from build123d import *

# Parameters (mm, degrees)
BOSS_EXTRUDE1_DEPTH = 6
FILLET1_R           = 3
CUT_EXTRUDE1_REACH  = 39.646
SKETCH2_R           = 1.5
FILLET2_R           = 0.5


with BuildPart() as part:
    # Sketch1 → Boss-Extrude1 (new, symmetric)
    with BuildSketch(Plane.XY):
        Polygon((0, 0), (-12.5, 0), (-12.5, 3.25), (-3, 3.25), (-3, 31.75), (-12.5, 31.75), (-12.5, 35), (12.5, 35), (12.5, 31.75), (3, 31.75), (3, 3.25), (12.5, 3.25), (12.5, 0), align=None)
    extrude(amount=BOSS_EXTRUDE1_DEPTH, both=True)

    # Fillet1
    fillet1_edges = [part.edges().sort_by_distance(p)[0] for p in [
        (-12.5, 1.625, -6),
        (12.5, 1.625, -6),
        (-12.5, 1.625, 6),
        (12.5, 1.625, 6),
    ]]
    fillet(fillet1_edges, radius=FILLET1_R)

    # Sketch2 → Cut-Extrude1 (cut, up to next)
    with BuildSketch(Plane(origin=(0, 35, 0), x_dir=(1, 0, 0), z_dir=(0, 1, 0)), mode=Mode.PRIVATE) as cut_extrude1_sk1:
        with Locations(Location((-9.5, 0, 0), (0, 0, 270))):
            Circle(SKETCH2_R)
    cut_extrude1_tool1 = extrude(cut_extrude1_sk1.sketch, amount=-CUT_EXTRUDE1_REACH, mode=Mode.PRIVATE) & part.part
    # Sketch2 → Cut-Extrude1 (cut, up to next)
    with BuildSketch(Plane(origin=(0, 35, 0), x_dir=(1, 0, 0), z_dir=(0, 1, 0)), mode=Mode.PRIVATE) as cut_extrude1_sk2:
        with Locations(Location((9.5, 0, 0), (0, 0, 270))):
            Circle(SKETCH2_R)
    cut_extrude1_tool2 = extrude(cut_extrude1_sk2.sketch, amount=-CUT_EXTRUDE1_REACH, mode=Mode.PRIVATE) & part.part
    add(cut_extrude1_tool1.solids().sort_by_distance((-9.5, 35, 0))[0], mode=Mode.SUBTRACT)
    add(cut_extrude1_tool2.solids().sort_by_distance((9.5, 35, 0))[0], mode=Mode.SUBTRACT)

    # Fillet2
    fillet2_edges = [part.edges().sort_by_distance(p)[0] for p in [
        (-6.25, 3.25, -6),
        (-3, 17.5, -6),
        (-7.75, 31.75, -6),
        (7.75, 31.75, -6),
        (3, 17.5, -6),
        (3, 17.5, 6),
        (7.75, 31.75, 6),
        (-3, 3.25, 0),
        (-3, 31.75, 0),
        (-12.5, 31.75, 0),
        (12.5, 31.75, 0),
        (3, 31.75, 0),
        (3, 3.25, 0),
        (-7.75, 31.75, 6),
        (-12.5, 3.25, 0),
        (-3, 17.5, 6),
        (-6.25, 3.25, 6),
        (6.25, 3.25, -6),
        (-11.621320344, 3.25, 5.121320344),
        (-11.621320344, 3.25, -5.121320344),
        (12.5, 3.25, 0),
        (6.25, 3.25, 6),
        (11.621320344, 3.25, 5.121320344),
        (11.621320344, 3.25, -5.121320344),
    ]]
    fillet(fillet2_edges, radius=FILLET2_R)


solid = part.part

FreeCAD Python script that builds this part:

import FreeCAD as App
import Part
import Sketcher

V = App.Vector


def edges_at(feature, points):
    """Names of the edges that pass closest to the given points."""
    edges = feature.Shape.Edges
    near = lambda p: min(range(len(edges)), key=lambda i: edges[i].distToShape(Part.Vertex(*p))[0])
    return sorted({f"Edge{near(p) + 1}" for p in points})

doc = App.newDocument("Part")
body = doc.addObject("PartDesign::Body", "Body")

sketch1 = body.newObject("Sketcher::SketchObject", "Sketch")
sketch1.AttachmentSupport = (doc.getObject("XY_Plane"), [""])
sketch1.MapMode = "FlatFace"
sketch1.addGeometry(Part.LineSegment(V(-12.5, 0, 0), V(12.5, 0, 0)), False)
sketch1.addGeometry(Part.LineSegment(V(12.5, 0, 0), V(12.5, 3.2, 0)), False)
sketch1.addGeometry(Part.LineSegment(V(12.5, 3.2, 0), V(3, 3.2, 0)), False)
sketch1.addGeometry(Part.LineSegment(V(3, 3.2, 0), V(3, 31.8, 0)), False)
sketch1.addGeometry(Part.LineSegment(V(3, 31.8, 0), V(12.5, 31.8, 0)), False)
sketch1.addGeometry(Part.LineSegment(V(12.5, 31.8, 0), V(12.5, 35, 0)), False)
sketch1.addGeometry(Part.LineSegment(V(12.5, 35, 0), V(-12.5, 35, 0)), False)
sketch1.addGeometry(Part.LineSegment(V(-12.5, 35, 0), V(-12.5, 31.8, 0)), False)
sketch1.addGeometry(Part.LineSegment(V(-12.5, 31.8, 0), V(-3, 31.8, 0)), False)
sketch1.addGeometry(Part.LineSegment(V(-3, 31.8, 0), V(-3, 3.2, 0)), False)
sketch1.addGeometry(Part.LineSegment(V(-3, 3.2, 0), V(-12.5, 3.2, 0)), False)
sketch1.addGeometry(Part.LineSegment(V(-12.5, 3.2, 0), V(-12.5, 0, 0)), False)
sketch1.addConstraint(Sketcher.Constraint("Coincident", 0, 2, 1, 1))
sketch1.addConstraint(Sketcher.Constraint("Coincident", 1, 2, 2, 1))
sketch1.addConstraint(Sketcher.Constraint("Coincident", 2, 2, 3, 1))
sketch1.addConstraint(Sketcher.Constraint("Coincident", 3, 2, 4, 1))
sketch1.addConstraint(Sketcher.Constraint("Coincident", 4, 2, 5, 1))
sketch1.addConstraint(Sketcher.Constraint("Coincident", 5, 2, 6, 1))
sketch1.addConstraint(Sketcher.Constraint("Coincident", 6, 2, 7, 1))
sketch1.addConstraint(Sketcher.Constraint("Coincident", 7, 2, 8, 1))
sketch1.addConstraint(Sketcher.Constraint("Coincident", 8, 2, 9, 1))
sketch1.addConstraint(Sketcher.Constraint("Coincident", 9, 2, 10, 1))
sketch1.addConstraint(Sketcher.Constraint("Coincident", 10, 2, 11, 1))
sketch1.addConstraint(Sketcher.Constraint("Coincident", 11, 2, 0, 1))
sketch1.addConstraint(Sketcher.Constraint("Horizontal", 0))
sketch1.addConstraint(Sketcher.Constraint("Vertical", 1))
sketch1.addConstraint(Sketcher.Constraint("Horizontal", 2))
sketch1.addConstraint(Sketcher.Constraint("Vertical", 3))
sketch1.addConstraint(Sketcher.Constraint("Horizontal", 4))
sketch1.addConstraint(Sketcher.Constraint("Vertical", 5))
sketch1.addConstraint(Sketcher.Constraint("Horizontal", 6))
sketch1.addConstraint(Sketcher.Constraint("Vertical", 7))
sketch1.addConstraint(Sketcher.Constraint("Horizontal", 8))
sketch1.addConstraint(Sketcher.Constraint("Vertical", 9))
sketch1.addConstraint(Sketcher.Constraint("Horizontal", 10))
sketch1.addConstraint(Sketcher.Constraint("Vertical", 11))
sketch1.addConstraint(Sketcher.Constraint("Symmetric", 0, 2, 11, 2, -1, 1))
sketch1.addConstraint(Sketcher.Constraint("Symmetric", 4, 2, 7, 2, -2))
sketch1.addConstraint(Sketcher.Constraint("Symmetric", 2, 2, 9, 2, -2))
sketch1.addConstraint(Sketcher.Constraint("Vertical", 1, 2, 4, 2))
sketch1.addConstraint(Sketcher.Constraint("Equal", 1, 5))
sketch1.addConstraint(Sketcher.Constraint("DistanceX", 0, 1, 0, 2, 25.0))
sketch1.addConstraint(Sketcher.Constraint("DistanceX", 2, 2, 2, 1, 9.5))
sketch1.addConstraint(Sketcher.Constraint("DistanceY", 3, 1, 3, 2, 28.5))
sketch1.addConstraint(Sketcher.Constraint("DistanceY", -1, 1, 5, 2, 35.0))
pad1 = body.newObject("PartDesign::Pad", "Pad")
pad1.Profile = sketch1
pad1.Length = 12
pad1.Midplane = True
doc.recompute()

fillet = body.newObject("PartDesign::Fillet", "Fillet")
fillet.Base = (pad1, edges_at(pad1, [
    (-12.5, 1.625, -6),
    (12.5, 1.625, -6),
    (-12.5, 1.625, 6),
    (12.5, 1.625, 6),
]))
fillet.Radius = 3

sketch2 = body.newObject("Sketcher::SketchObject", "Sketch001")
sketch2.AttachmentSupport = (doc.getObject("XZ_Plane"), [""])
sketch2.MapMode = "FlatFace"
sketch2.AttachmentOffset = App.Placement(V(0, 0, -35), App.Rotation())
sketch2.addGeometry(Part.Circle(V(-9.5, 0, 0), V(0, 0, 1), 1.5), False)
sketch2.addConstraint(Sketcher.Constraint("PointOnObject", 0, 3, -1))
sketch2.addConstraint(Sketcher.Constraint("Diameter", 0, 3.0))
sketch2.addConstraint(Sketcher.Constraint("DistanceX", 0, 3, -1, 1, 9.5))
pocket1 = body.newObject("PartDesign::Pocket", "Pocket")
pocket1.Profile = sketch2
pocket1.Type = "UpToFirst"
pocket1.Reversed = True

sketch3 = body.newObject("Sketcher::SketchObject", "Sketch002")
sketch3.AttachmentSupport = (doc.getObject("XZ_Plane"), [""])
sketch3.MapMode = "FlatFace"
sketch3.AttachmentOffset = App.Placement(V(0, 0, -35), App.Rotation())
sketch3.addGeometry(Part.Circle(V(9.5, 0, 0), V(0, 0, 1), 1.5), False)
sketch3.addConstraint(Sketcher.Constraint("PointOnObject", 0, 3, -1))
sketch3.addConstraint(Sketcher.Constraint("Diameter", 0, 3.0))
sketch3.addConstraint(Sketcher.Constraint("DistanceX", -1, 1, 0, 3, 9.5))
pocket2 = body.newObject("PartDesign::Pocket", "Pocket001")
pocket2.Profile = sketch3
pocket2.Type = "UpToFirst"
pocket2.Reversed = True
doc.recompute()

fillet2 = body.newObject("PartDesign::Fillet", "Fillet001")
fillet2.Base = (pocket2, edges_at(pocket2, [
    (-6.25, 3.25, -6),
    (-3, 17.5, -6),
    (-7.75, 31.75, -6),
    (7.75, 31.75, -6),
    (3, 17.5, -6),
    (3, 17.5, 6),
    (7.75, 31.75, 6),
    (-3, 3.25, 0),
    (-3, 31.75, 0),
    (-12.5, 31.75, 0),
    (12.5, 31.75, 0),
    (3, 31.75, 0),
    (3, 3.25, 0),
    (-7.75, 31.75, 6),
    (-12.5, 3.25, 0),
    (-3, 17.5, 6),
    (-6.25, 3.25, 6),
    (6.25, 3.25, -6),
    (-11.621, 3.25, 5.121),
    (-11.621, 3.25, -5.121),
    (12.5, 3.25, 0),
    (6.25, 3.25, 6),
    (11.621, 3.25, 5.121),
    (11.621, 3.25, -5.121),
]))
fillet2.Radius = 0.5

doc.recompute()
